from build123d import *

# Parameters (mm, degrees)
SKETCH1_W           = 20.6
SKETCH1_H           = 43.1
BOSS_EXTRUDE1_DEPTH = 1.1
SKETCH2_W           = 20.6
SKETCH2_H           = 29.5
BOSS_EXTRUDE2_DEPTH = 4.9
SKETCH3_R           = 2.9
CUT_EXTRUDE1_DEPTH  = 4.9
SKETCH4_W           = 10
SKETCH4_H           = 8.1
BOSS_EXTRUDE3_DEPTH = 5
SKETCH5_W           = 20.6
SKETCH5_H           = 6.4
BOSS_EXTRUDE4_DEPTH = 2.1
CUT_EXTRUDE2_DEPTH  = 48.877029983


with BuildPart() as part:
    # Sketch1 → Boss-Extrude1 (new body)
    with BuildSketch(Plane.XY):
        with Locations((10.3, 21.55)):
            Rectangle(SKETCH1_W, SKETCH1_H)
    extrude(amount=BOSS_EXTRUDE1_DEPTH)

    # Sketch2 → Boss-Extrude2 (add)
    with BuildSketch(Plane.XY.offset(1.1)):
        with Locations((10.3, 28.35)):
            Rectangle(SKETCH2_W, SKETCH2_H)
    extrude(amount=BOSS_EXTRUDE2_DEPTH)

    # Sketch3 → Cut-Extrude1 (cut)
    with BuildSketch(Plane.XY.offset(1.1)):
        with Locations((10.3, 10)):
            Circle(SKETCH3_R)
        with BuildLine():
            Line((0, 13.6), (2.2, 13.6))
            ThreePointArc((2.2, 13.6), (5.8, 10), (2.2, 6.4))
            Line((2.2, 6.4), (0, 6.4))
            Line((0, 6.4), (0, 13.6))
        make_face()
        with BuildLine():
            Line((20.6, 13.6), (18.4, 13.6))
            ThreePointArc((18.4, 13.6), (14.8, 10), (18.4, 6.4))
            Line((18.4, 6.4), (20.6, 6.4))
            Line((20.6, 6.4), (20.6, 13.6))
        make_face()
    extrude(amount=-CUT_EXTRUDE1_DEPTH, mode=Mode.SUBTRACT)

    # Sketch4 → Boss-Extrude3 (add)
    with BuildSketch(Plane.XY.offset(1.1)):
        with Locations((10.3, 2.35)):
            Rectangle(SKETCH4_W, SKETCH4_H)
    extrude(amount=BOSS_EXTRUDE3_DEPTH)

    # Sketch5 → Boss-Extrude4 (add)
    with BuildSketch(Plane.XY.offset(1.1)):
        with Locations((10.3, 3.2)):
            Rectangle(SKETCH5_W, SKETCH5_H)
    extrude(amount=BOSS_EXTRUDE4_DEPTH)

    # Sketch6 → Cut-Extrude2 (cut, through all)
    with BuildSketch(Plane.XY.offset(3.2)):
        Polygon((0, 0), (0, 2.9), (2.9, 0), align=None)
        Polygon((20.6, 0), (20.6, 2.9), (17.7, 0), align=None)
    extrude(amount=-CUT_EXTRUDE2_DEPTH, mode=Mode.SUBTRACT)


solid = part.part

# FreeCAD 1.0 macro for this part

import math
import FreeCAD as App
import Part
import Sketcher


def add_polygon(sketch, points):
    """Adds a closed chain of lines whose ends are joined by coincident constraints."""
    first, n = sketch.GeometryCount, len(points)
    for a, b in zip(points, points[1:] + points[:1]):
        sketch.addGeometry(Part.LineSegment(App.Vector(*a, 0), App.Vector(*b, 0)), False)
    for i in range(n):
        sketch.addConstraint(Sketcher.Constraint("Coincident", first + i, 2, first + (i + 1) % n, 1))

doc = App.newDocument("Part")
body = doc.addObject("PartDesign::Body", "Body")

sketch1 = body.newObject("Sketcher::SketchObject", "Sketch")
sketch1.AttachmentSupport = (doc.getObject("XY_Plane"), [""])
sketch1.MapMode = "FlatFace"
add_polygon(sketch1, [(0, 43), (0, 0), (21, 0), (21, 43)])
sketch1.addConstraint([
    Sketcher.Constraint("Vertical", 0),
    Sketcher.Constraint("Horizontal", 1),
    Sketcher.Constraint("Vertical", 2),
    Sketcher.Constraint("Horizontal", 3),
    Sketcher.Constraint("Coincident", 0, 2, -1, 1),
    Sketcher.Constraint("DistanceX", 1, 1, 1, 2, 20.6),
    Sketcher.Constraint("DistanceY", 0, 2, 0, 1, 43.1),
])
pad1 = body.newObject("PartDesign::Pad", "Pad")
pad1.Profile = sketch1
pad1.Length = 1.1

sketch2 = body.newObject("Sketcher::SketchObject", "Sketch001")
sketch2.AttachmentSupport = (doc.getObject("XY_Plane"), [""])
sketch2.MapMode = "FlatFace"
sketch2.AttachmentOffset = App.Placement(App.Vector(0, 0, 1.1), App.Rotation())
add_polygon(sketch2, [(0, 43), (0, 14), (21, 14), (21, 43)])
sketch2.addConstraint([
    Sketcher.Constraint("Vertical", 0),
    Sketcher.Constraint("Horizontal", 1),
    Sketcher.Constraint("Vertical", 2),
    Sketcher.Constraint("Horizontal", 3),
    Sketcher.Constraint("PointOnObject", 0, 2, -2),
    Sketcher.Constraint("DistanceX", 1, 1, 1, 2, 20.6),
    Sketcher.Constraint("DistanceY", 0, 2, 0, 1, 29.5),
    Sketcher.Constraint("DistanceY", -1, 1, 0, 2, 13.6),
])
pad2 = body.newObject("PartDesign::Pad", "Pad001")
pad2.Profile = sketch2
pad2.Length = 4.9

sketch3 = body.newObject("Sketcher::SketchObject", "Sketch002")
sketch3.AttachmentSupport = (doc.getObject("XY_Plane"), [""])
sketch3.MapMode = "FlatFace"
sketch3.AttachmentOffset = App.Placement(App.Vector(0, 0, 1.1), App.Rotation())
sketch3.addGeometry([
    Part.Circle(App.Vector(10.3, 10, 0), App.Vector(0, 0, 1), 2.9),
    Part.LineSegment(App.Vector(2.2, 13.6, 0), App.Vector(0, 13.6, 0)),
    Part.LineSegment(App.Vector(0, 13.6, 0), App.Vector(0, 6.4, 0)),
    Part.LineSegment(App.Vector(0, 6.4, 0), App.Vector(2.2, 6.4, 0)),
    Part.ArcOfCircle(Part.Circle(App.Vector(2.2, 10, 0), App.Vector(0, 0, 1), 3.6), math.radians(-90), math.radians(90)),
    Part.LineSegment(App.Vector(20.6, 13.6, 0), App.Vector(18.4, 13.6, 0)),
    Part.ArcOfCircle(Part.Circle(App.Vector(18.4, 10, 0), App.Vector(0, 0, 1), 3.6), math.radians(90), math.radians(270)),
    Part.LineSegment(App.Vector(18.4, 6.4, 0), App.Vector(20.6, 6.4, 0)),
    Part.LineSegment(App.Vector(20.6, 6.4, 0), App.Vector(20.6, 13.6, 0)),
], False)
sketch3.addConstraint([
    Sketcher.Constraint("Coincident", 1, 2, 2, 1),
    Sketcher.Constraint("Coincident", 2, 2, 3, 1),
    Sketcher.Constraint("Tangent", 3, 2, 4, 1),
    Sketcher.Constraint("Tangent", 4, 2, 1, 1),
    Sketcher.Constraint("Tangent", 5, 2, 6, 1),
    Sketcher.Constraint("Tangent", 6, 2, 7, 1),
    Sketcher.Constraint("Coincident", 7, 2, 8, 1),
    Sketcher.Constraint("Coincident", 8, 2, 5, 1),
    Sketcher.Constraint("Horizontal", 1),
    Sketcher.Constraint("Vertical", 2),
    Sketcher.Constraint("Horizontal", 3),
    Sketcher.Constraint("Horizontal", 5),
    Sketcher.Constraint("Horizontal", 7),
    Sketcher.Constraint("Vertical", 8),
    Sketcher.Constraint("Equal", 4, 6),
    Sketcher.Constraint("PointOnObject", 1, 2, -2),
    Sketcher.Constraint("Horizontal", 0, 3, 4, 3),
    Sketcher.Constraint("Horizontal", 4, 3, 6, 3),
    Sketcher.Constraint("Equal", 3, 5),
    Sketcher.Constraint("Diameter", 0, 5.8),
    Sketcher.Constraint("Radius", 4, 3.6),
    Sketcher.Constraint("DistanceX", 1, 2, 1, 1, 2.2),
    Sketcher.Constraint("DistanceY", -1, 1, 0, 3, 10.0),
    Sketcher.Constraint("DistanceX", -1, 1, 0, 3, 10.3),
    Sketcher.Constraint("DistanceX", -1, 1, 6, 3, 18.4),
])
pocket1 = body.newObject("PartDesign::Pocket", "Pocket")
pocket1.Profile = sketch3
pocket1.Length = 4.9

sketch4 = body.newObject("Sketcher::SketchObject", "Sketch003")
sketch4.AttachmentSupport = (doc.getObject("XY_Plane"), [""])
sketch4.MapMode = "FlatFace"
sketch4.AttachmentOffset = App.Placement(App.Vector(0, 0, 1.1), App.Rotation())
add_polygon(sketch4, [(5, 6), (5, -2), (15, -2), (15, 6)])
sketch4.addConstraint([
    Sketcher.Constraint("Vertical", 0),
    Sketcher.Constraint("Horizontal", 1),
    Sketcher.Constraint("Vertical", 2),
    Sketcher.Constraint("Horizontal", 3),
    Sketcher.Constraint("DistanceX", 1, 1, 1, 2, 10.0),
    Sketcher.Constraint("DistanceY", 0, 2, 0, 1, 8.1),
    Sketcher.Constraint("DistanceX", -1, 1, 0, 2, 5.3),
    Sketcher.Constraint("DistanceY", 0, 2, -1, 1, 1.7),
])
pad3 = body.newObject("PartDesign::Pad", "Pad002")
pad3.Profile = sketch4
pad3.Length = 5

sketch5 = body.newObject("Sketcher::SketchObject", "Sketch004")
sketch5.AttachmentSupport = (doc.getObject("XY_Plane"), [""])
sketch5.MapMode = "FlatFace"
sketch5.AttachmentOffset = App.Placement(App.Vector(0, 0, 1.1), App.Rotation())
add_polygon(sketch5, [(0, 6), (0, 0), (21, 0), (21, 6)])
sketch5.addConstraint([
    Sketcher.Constraint("Vertical", 0),
    Sketcher.Constraint("Horizontal", 1),
    Sketcher.Constraint("Vertical", 2),
    Sketcher.Constraint("Horizontal", 3),
    Sketcher.Constraint("Coincident", 0, 2, -1, 1),
    Sketcher.Constraint("DistanceX", 1, 1, 1, 2, 20.6),
    Sketcher.Constraint("DistanceY", 0, 2, 0, 1, 6.4),
])
pad4 = body.newObject("PartDesign::Pad", "Pad003")
pad4.Profile = sketch5
pad4.Length = 2.1

sketch6 = body.newObject("Sketcher::SketchObject", "Sketch005")
sketch6.AttachmentSupport = (doc.getObject("XY_Plane"), [""])
sketch6.MapMode = "FlatFace"
sketch6.AttachmentOffset = App.Placement(App.Vector(0, 0, 3.2), App.Rotation())
add_polygon(sketch6, [(0, 2.9), (0, 0), (2.9, 0)])
add_polygon(sketch6, [(20.6, 0), (20.6, 2.9), (17.7, 0)])
sketch6.addConstraint([
    Sketcher.Constraint("Vertical", 0),
    Sketcher.Constraint("Horizontal", 1),
    Sketcher.Constraint("Vertical", 3),
    Sketcher.Constraint("Horizontal", 5),
    Sketcher.Constraint("Coincident", 0, 2, -1, 1),
    Sketcher.Constraint("PointOnObject", 4, 2, -1),
    Sketcher.Constraint("Perpendicular", 2, 4),
    Sketcher.Constraint("Horizontal", 2, 2, 3, 2),
    Sketcher.Constraint("Equal", 1, 5),
    Sketcher.Constraint("DistanceX", 1, 1, 1, 2, 2.9),
    Sketcher.Constraint("DistanceX", -1, 1, 3, 2, 20.6),
])
pocket2 = body.newObject("PartDesign::Pocket", "Pocket001")
pocket2.Profile = sketch6
pocket2.Type = "ThroughAll"

doc.recompute()
